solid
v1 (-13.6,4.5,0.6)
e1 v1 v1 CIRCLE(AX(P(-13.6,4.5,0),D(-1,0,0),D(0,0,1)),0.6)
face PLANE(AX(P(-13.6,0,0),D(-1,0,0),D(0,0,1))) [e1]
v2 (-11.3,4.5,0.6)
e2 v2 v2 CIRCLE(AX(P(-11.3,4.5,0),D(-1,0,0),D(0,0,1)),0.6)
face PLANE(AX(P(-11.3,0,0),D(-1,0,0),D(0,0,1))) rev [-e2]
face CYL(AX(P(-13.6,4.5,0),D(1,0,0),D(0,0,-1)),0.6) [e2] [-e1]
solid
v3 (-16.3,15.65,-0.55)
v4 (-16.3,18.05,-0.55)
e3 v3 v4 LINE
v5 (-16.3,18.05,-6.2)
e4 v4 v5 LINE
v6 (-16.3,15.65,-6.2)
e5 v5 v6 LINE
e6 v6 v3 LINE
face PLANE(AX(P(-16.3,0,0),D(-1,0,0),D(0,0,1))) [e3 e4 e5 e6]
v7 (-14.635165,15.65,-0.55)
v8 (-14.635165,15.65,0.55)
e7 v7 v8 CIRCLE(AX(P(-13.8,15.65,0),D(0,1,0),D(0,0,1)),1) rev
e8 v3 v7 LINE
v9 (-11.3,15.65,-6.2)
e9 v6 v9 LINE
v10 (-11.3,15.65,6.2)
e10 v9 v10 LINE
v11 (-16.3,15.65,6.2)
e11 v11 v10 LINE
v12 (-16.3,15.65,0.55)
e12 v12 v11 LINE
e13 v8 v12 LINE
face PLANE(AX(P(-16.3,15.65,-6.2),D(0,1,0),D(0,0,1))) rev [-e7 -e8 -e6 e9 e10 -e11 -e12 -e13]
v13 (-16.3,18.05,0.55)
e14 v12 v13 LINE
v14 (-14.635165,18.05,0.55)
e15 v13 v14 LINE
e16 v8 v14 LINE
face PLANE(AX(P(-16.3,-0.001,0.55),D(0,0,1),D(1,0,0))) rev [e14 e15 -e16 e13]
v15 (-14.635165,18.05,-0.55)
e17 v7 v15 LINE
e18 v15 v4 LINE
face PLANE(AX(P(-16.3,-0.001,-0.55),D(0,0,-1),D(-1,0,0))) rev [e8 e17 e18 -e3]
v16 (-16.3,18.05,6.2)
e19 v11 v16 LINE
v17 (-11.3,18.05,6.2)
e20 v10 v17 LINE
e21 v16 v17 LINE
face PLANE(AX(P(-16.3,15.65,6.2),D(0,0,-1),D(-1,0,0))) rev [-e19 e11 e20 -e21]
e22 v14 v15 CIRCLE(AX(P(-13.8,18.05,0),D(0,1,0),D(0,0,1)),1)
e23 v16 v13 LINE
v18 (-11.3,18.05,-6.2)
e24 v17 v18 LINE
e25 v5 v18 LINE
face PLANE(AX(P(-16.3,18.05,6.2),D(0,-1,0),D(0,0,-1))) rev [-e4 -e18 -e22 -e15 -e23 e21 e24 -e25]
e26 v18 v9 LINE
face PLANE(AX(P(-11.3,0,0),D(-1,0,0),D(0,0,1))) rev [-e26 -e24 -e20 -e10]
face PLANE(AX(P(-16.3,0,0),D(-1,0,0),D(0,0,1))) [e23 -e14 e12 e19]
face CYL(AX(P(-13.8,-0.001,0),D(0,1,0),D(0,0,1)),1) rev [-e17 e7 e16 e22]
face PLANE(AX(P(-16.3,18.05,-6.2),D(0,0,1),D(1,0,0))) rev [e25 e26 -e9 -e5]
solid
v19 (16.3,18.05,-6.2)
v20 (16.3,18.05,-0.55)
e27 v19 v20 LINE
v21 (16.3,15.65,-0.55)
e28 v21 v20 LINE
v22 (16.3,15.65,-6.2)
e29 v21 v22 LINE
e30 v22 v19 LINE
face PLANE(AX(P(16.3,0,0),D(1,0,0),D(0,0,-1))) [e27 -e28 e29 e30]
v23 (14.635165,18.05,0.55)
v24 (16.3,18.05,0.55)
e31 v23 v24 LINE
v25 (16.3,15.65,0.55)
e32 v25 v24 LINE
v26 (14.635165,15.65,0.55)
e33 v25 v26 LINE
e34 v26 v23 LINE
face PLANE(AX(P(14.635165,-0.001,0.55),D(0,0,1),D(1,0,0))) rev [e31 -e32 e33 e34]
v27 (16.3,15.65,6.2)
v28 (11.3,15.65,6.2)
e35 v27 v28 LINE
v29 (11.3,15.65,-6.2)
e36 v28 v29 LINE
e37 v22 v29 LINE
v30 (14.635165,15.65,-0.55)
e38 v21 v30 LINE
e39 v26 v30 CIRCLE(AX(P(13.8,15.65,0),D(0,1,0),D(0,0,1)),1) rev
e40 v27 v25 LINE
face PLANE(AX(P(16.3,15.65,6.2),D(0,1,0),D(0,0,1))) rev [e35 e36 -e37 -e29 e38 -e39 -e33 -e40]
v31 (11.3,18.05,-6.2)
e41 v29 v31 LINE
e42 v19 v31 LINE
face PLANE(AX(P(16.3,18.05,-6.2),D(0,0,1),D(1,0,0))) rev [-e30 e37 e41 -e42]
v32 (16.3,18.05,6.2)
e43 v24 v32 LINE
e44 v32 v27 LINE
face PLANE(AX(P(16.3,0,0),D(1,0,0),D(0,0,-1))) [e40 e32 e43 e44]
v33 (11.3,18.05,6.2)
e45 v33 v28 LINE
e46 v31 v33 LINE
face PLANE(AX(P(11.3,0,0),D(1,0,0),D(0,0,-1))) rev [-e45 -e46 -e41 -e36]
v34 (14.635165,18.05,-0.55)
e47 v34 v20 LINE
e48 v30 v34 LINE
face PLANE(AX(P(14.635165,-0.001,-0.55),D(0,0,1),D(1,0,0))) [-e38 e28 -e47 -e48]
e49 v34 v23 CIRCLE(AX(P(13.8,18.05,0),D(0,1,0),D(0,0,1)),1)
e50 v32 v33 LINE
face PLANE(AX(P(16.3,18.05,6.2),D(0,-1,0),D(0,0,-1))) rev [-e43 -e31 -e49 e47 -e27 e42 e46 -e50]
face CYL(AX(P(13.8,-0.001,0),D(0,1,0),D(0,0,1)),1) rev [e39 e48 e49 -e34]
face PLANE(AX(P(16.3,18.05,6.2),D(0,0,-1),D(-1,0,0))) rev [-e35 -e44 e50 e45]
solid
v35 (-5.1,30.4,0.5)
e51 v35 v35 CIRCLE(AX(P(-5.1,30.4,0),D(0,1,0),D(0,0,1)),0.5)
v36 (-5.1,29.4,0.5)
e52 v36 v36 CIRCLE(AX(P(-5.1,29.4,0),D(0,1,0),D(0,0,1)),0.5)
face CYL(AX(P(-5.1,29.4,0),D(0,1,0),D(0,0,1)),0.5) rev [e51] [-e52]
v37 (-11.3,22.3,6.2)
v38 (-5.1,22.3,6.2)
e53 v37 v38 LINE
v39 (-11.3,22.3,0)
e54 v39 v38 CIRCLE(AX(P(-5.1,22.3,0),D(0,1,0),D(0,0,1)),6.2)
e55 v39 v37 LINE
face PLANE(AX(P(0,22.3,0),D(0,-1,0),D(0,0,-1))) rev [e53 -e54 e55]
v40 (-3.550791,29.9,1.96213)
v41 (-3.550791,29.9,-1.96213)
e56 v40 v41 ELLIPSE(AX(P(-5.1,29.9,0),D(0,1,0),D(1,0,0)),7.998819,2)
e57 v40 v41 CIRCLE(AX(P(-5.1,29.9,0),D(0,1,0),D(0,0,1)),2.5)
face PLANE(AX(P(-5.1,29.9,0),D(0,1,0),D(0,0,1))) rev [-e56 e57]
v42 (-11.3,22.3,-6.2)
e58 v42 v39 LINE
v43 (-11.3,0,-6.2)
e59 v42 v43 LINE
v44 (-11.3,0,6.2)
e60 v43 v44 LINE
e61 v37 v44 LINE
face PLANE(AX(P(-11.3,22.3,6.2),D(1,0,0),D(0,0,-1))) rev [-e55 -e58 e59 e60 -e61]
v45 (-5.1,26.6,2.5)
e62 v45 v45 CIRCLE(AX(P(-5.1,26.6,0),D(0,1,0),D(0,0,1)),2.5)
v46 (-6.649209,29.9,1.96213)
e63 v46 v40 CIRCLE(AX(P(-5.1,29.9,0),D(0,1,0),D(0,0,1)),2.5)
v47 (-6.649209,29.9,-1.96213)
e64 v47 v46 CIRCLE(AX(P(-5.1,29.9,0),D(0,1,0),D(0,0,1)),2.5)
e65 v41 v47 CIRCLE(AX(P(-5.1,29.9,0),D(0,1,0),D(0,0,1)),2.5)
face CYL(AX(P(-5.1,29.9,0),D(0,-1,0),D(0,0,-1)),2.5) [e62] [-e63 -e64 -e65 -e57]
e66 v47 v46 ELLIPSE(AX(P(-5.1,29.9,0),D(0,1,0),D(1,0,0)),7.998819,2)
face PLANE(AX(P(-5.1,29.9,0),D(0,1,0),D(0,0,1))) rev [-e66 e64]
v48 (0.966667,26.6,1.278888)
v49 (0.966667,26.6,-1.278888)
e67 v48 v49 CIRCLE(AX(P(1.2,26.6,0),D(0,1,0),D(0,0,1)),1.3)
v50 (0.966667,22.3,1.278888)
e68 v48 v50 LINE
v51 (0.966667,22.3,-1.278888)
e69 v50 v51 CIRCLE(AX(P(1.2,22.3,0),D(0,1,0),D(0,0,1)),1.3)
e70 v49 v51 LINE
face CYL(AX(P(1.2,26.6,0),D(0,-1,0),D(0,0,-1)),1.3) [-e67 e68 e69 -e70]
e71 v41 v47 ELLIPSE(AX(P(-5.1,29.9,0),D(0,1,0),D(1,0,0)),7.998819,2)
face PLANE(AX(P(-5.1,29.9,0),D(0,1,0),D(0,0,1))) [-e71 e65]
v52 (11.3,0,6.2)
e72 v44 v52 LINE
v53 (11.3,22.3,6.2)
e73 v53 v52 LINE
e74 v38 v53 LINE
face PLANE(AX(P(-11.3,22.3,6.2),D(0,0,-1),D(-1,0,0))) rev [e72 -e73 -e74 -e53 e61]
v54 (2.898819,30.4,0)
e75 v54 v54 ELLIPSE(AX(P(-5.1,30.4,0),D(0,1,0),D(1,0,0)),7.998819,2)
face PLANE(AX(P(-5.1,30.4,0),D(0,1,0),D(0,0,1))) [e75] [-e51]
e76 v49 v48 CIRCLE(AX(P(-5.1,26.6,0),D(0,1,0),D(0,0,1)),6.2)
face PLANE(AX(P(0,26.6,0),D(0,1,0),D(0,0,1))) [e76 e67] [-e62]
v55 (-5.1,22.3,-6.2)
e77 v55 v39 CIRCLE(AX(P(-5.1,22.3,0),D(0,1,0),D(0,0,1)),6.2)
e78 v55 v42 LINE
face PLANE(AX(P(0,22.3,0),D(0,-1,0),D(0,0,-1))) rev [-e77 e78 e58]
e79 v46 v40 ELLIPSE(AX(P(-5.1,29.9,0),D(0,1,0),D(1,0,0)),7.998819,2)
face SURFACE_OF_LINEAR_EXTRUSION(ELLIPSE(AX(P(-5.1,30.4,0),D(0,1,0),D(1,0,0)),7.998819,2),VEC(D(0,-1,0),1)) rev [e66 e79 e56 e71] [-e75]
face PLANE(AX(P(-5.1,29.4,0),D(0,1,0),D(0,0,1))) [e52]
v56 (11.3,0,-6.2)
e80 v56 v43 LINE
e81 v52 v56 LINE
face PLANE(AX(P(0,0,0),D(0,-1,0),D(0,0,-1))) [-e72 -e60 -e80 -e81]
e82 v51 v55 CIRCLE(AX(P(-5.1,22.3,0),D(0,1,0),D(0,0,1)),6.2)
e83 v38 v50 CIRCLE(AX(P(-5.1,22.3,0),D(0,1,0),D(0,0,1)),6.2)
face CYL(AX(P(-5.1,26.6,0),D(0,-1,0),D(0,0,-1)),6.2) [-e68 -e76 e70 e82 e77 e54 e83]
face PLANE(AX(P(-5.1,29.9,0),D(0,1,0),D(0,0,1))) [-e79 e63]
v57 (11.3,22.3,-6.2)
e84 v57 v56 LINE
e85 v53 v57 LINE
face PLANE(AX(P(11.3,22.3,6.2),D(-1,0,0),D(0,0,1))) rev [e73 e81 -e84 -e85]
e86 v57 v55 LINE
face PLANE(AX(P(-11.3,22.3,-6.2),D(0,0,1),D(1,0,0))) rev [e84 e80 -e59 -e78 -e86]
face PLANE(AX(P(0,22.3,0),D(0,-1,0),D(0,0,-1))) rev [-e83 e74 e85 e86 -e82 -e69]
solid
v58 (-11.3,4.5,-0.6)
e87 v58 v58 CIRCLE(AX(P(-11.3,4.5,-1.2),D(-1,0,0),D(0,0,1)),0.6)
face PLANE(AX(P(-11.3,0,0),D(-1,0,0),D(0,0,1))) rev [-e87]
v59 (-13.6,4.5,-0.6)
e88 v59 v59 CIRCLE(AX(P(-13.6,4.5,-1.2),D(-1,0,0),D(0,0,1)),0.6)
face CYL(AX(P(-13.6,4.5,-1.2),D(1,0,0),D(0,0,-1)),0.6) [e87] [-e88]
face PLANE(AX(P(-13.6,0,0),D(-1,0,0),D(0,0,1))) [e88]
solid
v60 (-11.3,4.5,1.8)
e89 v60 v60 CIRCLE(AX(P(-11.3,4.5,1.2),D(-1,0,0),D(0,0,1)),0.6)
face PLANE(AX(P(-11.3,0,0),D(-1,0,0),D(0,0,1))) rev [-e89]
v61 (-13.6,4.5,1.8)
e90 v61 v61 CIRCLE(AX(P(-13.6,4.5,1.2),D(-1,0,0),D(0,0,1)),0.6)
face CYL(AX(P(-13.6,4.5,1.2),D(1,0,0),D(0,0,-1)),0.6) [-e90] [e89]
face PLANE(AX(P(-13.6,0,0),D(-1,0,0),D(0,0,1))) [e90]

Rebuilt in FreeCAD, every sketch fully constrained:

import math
import FreeCAD as App
import Part
import Sketcher

V = App.Vector

doc = App.newDocument("Part")
params = doc.addObject("Spreadsheet::Sheet", "Params")
for row, (alias, value) in enumerate([
    ("sketch1_width", "22.6 mm"),
    ("sketch1_height", "12.4 mm"),
    ("pad1_length", "22.3 mm"),
    ("sketch2_radius", "1.3 mm"),
    ("sketch2_radius2", "6.2 mm"),
    ("pad2_length", "4.3 mm"),
    ("sketch3_diameter", "5 mm"),
    ("pad3_length", "3.3 mm"),
    ("pad4_length", "0.5 mm"),
    ("sketch5_diameter", "1 mm"),
    ("pocket1_length", "1 mm"),
    ("sketch6_width", "2.4 mm"),
    ("sketch6_height", "12.4 mm"),
    ("pad5_length", "5 mm"),
    ("sketch7_radius", "1 mm"),
    ("sketch7_height", "1.1 mm"),
    ("pocket2_length", "2.4 mm"),
    ("sketch8_width", "2.4 mm"),
    ("sketch8_height", "12.4 mm"),
    ("pad6_length", "5 mm"),
    ("sketch9_radius", "1 mm"),
    ("sketch9_height", "1.1 mm"),
    ("pocket3_length", "2.4 mm"),
    ("sketch10_diameter", "1.2 mm"),
    ("pad7_length", "2.3 mm"),
    ("sketch11_diameter", "1.2 mm"),
    ("pad8_length", "2.3 mm"),
    ("sketch12_diameter", "1.2 mm"),
    ("pad9_length", "2.3 mm"),
], start=1):
    params.set(f"A{row}", alias)
    params.set(f"B{row}", "=" + value)
    params.setAlias(f"B{row}", alias)

body = doc.addObject("PartDesign::Body", "Body")

# Sketch on XZ plane
sketch1 = body.newObject("Sketcher::SketchObject", "Sketch")
sketch1.AttachmentSupport = (doc.getObject("XZ_Plane"), [""])
sketch1.MapMode = "FlatFace"
sketch1.addGeometry([
    Part.LineSegment(V(-11.3, -6.2, 0), V(-11.3, 6.2, 0)),
    Part.LineSegment(V(-11.3, 6.2, 0), V(11.3, 6.2, 0)),
    Part.LineSegment(V(11.3, 6.2, 0), V(11.3, -6.2, 0)),
    Part.LineSegment(V(11.3, -6.2, 0), V(-11.3, -6.2, 0)),
], False)
sketch1.addConstraint([
    Sketcher.Constraint("Coincident", 0, 2, 1, 1),
    Sketcher.Constraint("Coincident", 1, 2, 2, 1),
    Sketcher.Constraint("Coincident", 2, 2, 3, 1),
    Sketcher.Constraint("Coincident", 3, 2, 0, 1),
    Sketcher.Constraint("Vertical", 0),
    Sketcher.Constraint("Horizontal", 1),
    Sketcher.Constraint("Vertical", 2),
    Sketcher.Constraint("Horizontal", 3),
    Sketcher.Constraint("Symmetric", 0, 2, 2, 2, -1, 1),
    Sketcher.Constraint("DistanceX", 1, 1, 1, 2, 22.6),
    Sketcher.Constraint("DistanceY", 0, 1, 0, 2, 12.4),
])
sketch1.setExpression("Constraints[9]", "Params.sketch1_width")
sketch1.setExpression("Constraints[10]", "Params.sketch1_height")
pad1 = body.newObject("PartDesign::Pad", "Pad")
pad1.Profile = sketch1
pad1.setExpression("Length", "Params.pad1_length")
pad1.Reversed = True

# Sketch on XZ plane
sketch2 = body.newObject("Sketcher::SketchObject", "Sketch001")
sketch2.AttachmentSupport = (doc.getObject("XZ_Plane"), [""])
sketch2.MapMode = "FlatFace"
sketch2.AttachmentOffset = App.Placement(V(0, 0, -22.3), App.Rotation())
sketch2.addGeometry([
    Part.ArcOfCircle(Part.Circle(V(1.2, 0, 0), V(0, 0, 1), 1.3), math.radians(-100.339891), math.radians(100.339891)),
    Part.ArcOfCircle(Part.Circle(V(-5.1, 0, 0), V(0, 0, 1), 6.2), math.radians(11.90399), math.radians(348.09601)),
], False)
sketch2.addConstraint([
    Sketcher.Constraint("Coincident", 0, 1, 1, 2),
    Sketcher.Constraint("Coincident", 1, 1, 0, 2),
    Sketcher.Constraint("Symmetric", 0, 1, 1, 1, -1),
    Sketcher.Constraint("Radius", 0, 1.3),
    Sketcher.Constraint("Radius", 1, 6.2),
    Sketcher.Constraint("DistanceX", -1, 1, 0, 3, 1.2),
    Sketcher.Constraint("DistanceX", 1, 3, -1, 1, 5.1),
])
sketch2.setExpression("Constraints[3]", "Params.sketch2_radius")
sketch2.setExpression("Constraints[4]", "Params.sketch2_radius2")
pad2 = body.newObject("PartDesign::Pad", "Pad001")
pad2.Profile = sketch2
pad2.setExpression("Length", "Params.pad2_length")
pad2.Reversed = True

# Sketch on XZ plane
sketch3 = body.newObject("Sketcher::SketchObject", "Sketch002")
sketch3.AttachmentSupport = (doc.getObject("XZ_Plane"), [""])
sketch3.MapMode = "FlatFace"
sketch3.AttachmentOffset = App.Placement(V(0, 0, -26.6), App.Rotation())
sketch3.addGeometry(Part.Circle(V(-5.1, 0, 0), V(0, 0, 1), 2.5), False)
sketch3.addConstraint([
    Sketcher.Constraint("PointOnObject", 0, 3, -1),
    Sketcher.Constraint("Diameter", 0, 5.0),
    Sketcher.Constraint("DistanceX", 0, 3, -1, 1, 5.1),
])
sketch3.setExpression("Constraints[1]", "Params.sketch3_diameter")
pad3 = body.newObject("PartDesign::Pad", "Pad002")
pad3.Profile = sketch3
pad3.setExpression("Length", "Params.pad3_length")
pad3.Reversed = True

# Sketch on XZ plane
sketch4 = body.newObject("Sketcher::SketchObject", "Sketch003")
sketch4.AttachmentSupport = (doc.getObject("XZ_Plane"), [""])
sketch4.MapMode = "FlatFace"
sketch4.AttachmentOffset = App.Placement(V(0, 0, -29.9), App.Rotation())
sketch4.addGeometry(Part.Ellipse(V(2.898819, 0, 0), V(-5.1, 2, 0), V(-5.1, 0, 0)), False)
sketch4.addConstraint(Sketcher.Constraint("Block", 0))
pad4 = body.newObject("PartDesign::Pad", "Pad003")
pad4.Profile = sketch4
pad4.setExpression("Length", "Params.pad4_length")
pad4.Reversed = True

# Sketch on XZ plane
sketch5 = body.newObject("Sketcher::SketchObject", "Sketch004")
sketch5.AttachmentSupport = (doc.getObject("XZ_Plane"), [""])
sketch5.MapMode = "FlatFace"
sketch5.AttachmentOffset = App.Placement(V(0, 0, -30.4), App.Rotation())
sketch5.addGeometry(Part.Circle(V(-5.1, 0, 0), V(0, 0, 1), 0.5), False)
sketch5.addConstraint([
    Sketcher.Constraint("PointOnObject", 0, 3, -1),
    Sketcher.Constraint("Diameter", 0, 1.0),
    Sketcher.Constraint("DistanceX", 0, 3, -1, 1, 5.1),
])
sketch5.setExpression("Constraints[1]", "Params.sketch5_diameter")
pocket1 = body.newObject("PartDesign::Pocket", "Pocket")
pocket1.Profile = sketch5
pocket1.setExpression("Length", "Params.pocket1_length")
pocket1.Reversed = True
body2 = doc.addObject("PartDesign::Body", "Body001")

# Sketch on YZ plane
sketch6 = body2.newObject("Sketcher::SketchObject", "Sketch005")
sketch6.AttachmentSupport = (doc.getObject("YZ_Plane001"), [""])
sketch6.MapMode = "FlatFace"
sketch6.AttachmentOffset = App.Placement(V(0, 0, 11.3), App.Rotation())
sketch6.addGeometry([
    Part.LineSegment(V(18.05, 6.2, 0), V(15.65, 6.2, 0)),
    Part.LineSegment(V(15.65, 6.2, 0), V(15.65, -6.2, 0)),
    Part.LineSegment(V(15.65, -6.2, 0), V(18.05, -6.2, 0)),
    Part.LineSegment(V(18.05, -6.2, 0), V(18.05, 6.2, 0)),
], False)
sketch6.addConstraint([
    Sketcher.Constraint("Coincident", 0, 2, 1, 1),
    Sketcher.Constraint("Coincident", 1, 2, 2, 1),
    Sketcher.Constraint("Coincident", 2, 2, 3, 1),
    Sketcher.Constraint("Coincident", 3, 2, 0, 1),
    Sketcher.Constraint("Horizontal", 0),
    Sketcher.Constraint("Vertical", 1),
    Sketcher.Constraint("Horizontal", 2),
    Sketcher.Constraint("Vertical", 3),
    Sketcher.Constraint("DistanceX", 0, 2, 0, 1, 2.4),
    Sketcher.Constraint("DistanceY", 1, 2, 1, 1, 12.4),
    Sketcher.Constraint("DistanceY", -1, 1, 0, 2, 6.2),
    Sketcher.Constraint("DistanceX", -1, 1, 0, 2, 15.65),
])
sketch6.setExpression("Constraints[8]", "Params.sketch6_width")
sketch6.setExpression("Constraints[9]", "Params.sketch6_height")
pad5 = body2.newObject("PartDesign::Pad", "Pad004")
pad5.Profile = sketch6
pad5.setExpression("Length", "Params.pad5_length")

# Sketch on XZ plane
sketch7 = body2.newObject("Sketcher::SketchObject", "Sketch006")
sketch7.AttachmentSupport = (doc.getObject("XZ_Plane001"), [""])
sketch7.MapMode = "FlatFace"
sketch7.AttachmentOffset = App.Placement(V(0, 0, -18.05), App.Rotation())
sketch7.addGeometry([
    Part.LineSegment(V(16.3, -0.55, 0), V(14.635165, -0.55, 0)),
    Part.ArcOfCircle(Part.Circle(V(13.8, 0, 0), V(0, 0, 1), 1), math.radians(33.367013), math.radians(326.632987)),
    Part.LineSegment(V(14.635165, 0.55, 0), V(16.3, 0.55, 0)),
    Part.LineSegment(V(16.3, 0.55, 0), V(16.3, -0.55, 0)),
], False)
sketch7.addConstraint([
    Sketcher.Constraint("Coincident", 0, 2, 1, 2),
    Sketcher.Constraint("Coincident", 1, 1, 2, 1),
    Sketcher.Constraint("Coincident", 2, 2, 3, 1),
    Sketcher.Constraint("Coincident", 3, 2, 0, 1),
    Sketcher.Constraint("Horizontal", 0),
    Sketcher.Constraint("Horizontal", 2),
    Sketcher.Constraint("Vertical", 3),
    Sketcher.Constraint("Symmetric", 0, 2, 1, 1, -1),
    Sketcher.Constraint("Radius", 1, 1.0),
    Sketcher.Constraint("DistanceY", 3, 2, 3, 1, 1.1),
    Sketcher.Constraint("DistanceX", -1, 1, 1, 3, 13.8),
    Sketcher.Constraint("DistanceX", -1, 1, 2, 2, 16.3),
])
sketch7.setExpression("Constraints[8]", "Params.sketch7_radius")
sketch7.setExpression("Constraints[9]", "Params.sketch7_height")
pocket2 = body2.newObject("PartDesign::Pocket", "Pocket001")
pocket2.Profile = sketch7
pocket2.setExpression("Length", "Params.pocket2_length")
pocket2.Reversed = True
body3 = doc.addObject("PartDesign::Body", "Body002")

# Sketch on YZ plane
sketch8 = body3.newObject("Sketcher::SketchObject", "Sketch007")
sketch8.AttachmentSupport = (doc.getObject("YZ_Plane002"), [""])
sketch8.MapMode = "FlatFace"
sketch8.AttachmentOffset = App.Placement(V(0, 0, -11.3), App.Rotation())
sketch8.addGeometry([
    Part.LineSegment(V(18.05, -6.2, 0), V(15.65, -6.2, 0)),
    Part.LineSegment(V(15.65, -6.2, 0), V(15.65, 6.2, 0)),
    Part.LineSegment(V(15.65, 6.2, 0), V(18.05, 6.2, 0)),
    Part.LineSegment(V(18.05, 6.2, 0), V(18.05, -6.2, 0)),
], False)
sketch8.addConstraint([
    Sketcher.Constraint("Coincident", 0, 2, 1, 1),
    Sketcher.Constraint("Coincident", 1, 2, 2, 1),
    Sketcher.Constraint("Coincident", 2, 2, 3, 1),
    Sketcher.Constraint("Coincident", 3, 2, 0, 1),
    Sketcher.Constraint("Horizontal", 0),
    Sketcher.Constraint("Vertical", 1),
    Sketcher.Constraint("Horizontal", 2),
    Sketcher.Constraint("Vertical", 3),
    Sketcher.Constraint("DistanceX", 0, 2, 0, 1, 2.4),
    Sketcher.Constraint("DistanceY", 1, 1, 1, 2, 12.4),
    Sketcher.Constraint("DistanceY", 0, 2, -1, 1, 6.2),
    Sketcher.Constraint("DistanceX", -1, 1, 0, 2, 15.65),
])
sketch8.setExpression("Constraints[8]", "Params.sketch8_width")
sketch8.setExpression("Constraints[9]", "Params.sketch8_height")
pad6 = body3.newObject("PartDesign::Pad", "Pad005")
pad6.Profile = sketch8
pad6.setExpression("Length", "Params.pad6_length")
pad6.Reversed = True

# Sketch on XZ plane
sketch9 = body3.newObject("Sketcher::SketchObject", "Sketch008")
sketch9.AttachmentSupport = (doc.getObject("XZ_Plane002"), [""])
sketch9.MapMode = "FlatFace"
sketch9.AttachmentOffset = App.Placement(V(0, 0, -18.05), App.Rotation())
sketch9.addGeometry([
    Part.LineSegment(V(-14.635165, -0.55, 0), V(-16.3, -0.55, 0)),  # 0
    Part.LineSegment(V(-16.3, -0.55, 0), V(-16.3, 0.55, 0)),  # 1
    Part.LineSegment(V(-16.3, 0.55, 0), V(-14.635165, 0.55, 0)),  # 2
    Part.ArcOfCircle(Part.Circle(V(-13.8, 0, 0), V(0, 0, 1), 1), math.radians(-146.632987), math.radians(146.632987)),  # 3
    Part.LineSegment(V(14.635165, 0.55, 0), V(16.3, 0.55, 0)),  # 4
    Part.LineSegment(V(16.3, 0.55, 0), V(16.3, -0.55, 0)),  # 5
    Part.LineSegment(V(16.3, -0.55, 0), V(14.635165, -0.55, 0)),  # 6
    Part.ArcOfCircle(Part.Circle(V(13.8, 0, 0), V(0, 0, 1), 1), math.radians(33.367013), math.radians(326.632987)),  # 7
], False)
sketch9.addConstraint([
    Sketcher.Constraint("Coincident", 0, 2, 1, 1),
    Sketcher.Constraint("Coincident", 1, 2, 2, 1),
    Sketcher.Constraint("Coincident", 2, 2, 3, 2),
    Sketcher.Constraint("Coincident", 3, 1, 0, 1),
    Sketcher.Constraint("Coincident", 4, 2, 5, 1),
    Sketcher.Constraint("Coincident", 5, 2, 6, 1),
    Sketcher.Constraint("Coincident", 6, 2, 7, 2),
    Sketcher.Constraint("Coincident", 7, 1, 4, 1),
    Sketcher.Constraint("Horizontal", 0),
    Sketcher.Constraint("Vertical", 1),
    Sketcher.Constraint("Horizontal", 2),
    Sketcher.Constraint("Horizontal", 4),
    Sketcher.Constraint("Vertical", 5),
    Sketcher.Constraint("Horizontal", 6),
    Sketcher.Constraint("Equal", 3, 7),
    Sketcher.Constraint("Symmetric", 3, 3, 7, 3, -1, 1),
    Sketcher.Constraint("Symmetric", 0, 2, 4, 2, -1, 1),
    Sketcher.Constraint("Symmetric", 3, 1, 6, 2, -2),
    Sketcher.Constraint("Horizontal", 2, 2, 4, 2),
    Sketcher.Constraint("Radius", 3, 1.0),
    Sketcher.Constraint("DistanceY", 1, 1, 1, 2, 1.1),
    Sketcher.Constraint("DistanceX", 3, 3, -1, 1, 13.8),
    Sketcher.Constraint("DistanceX", 0, 2, -1, 1, 16.3),
])
sketch9.setExpression("Constraints[19]", "Params.sketch9_radius")
sketch9.setExpression("Constraints[20]", "Params.sketch9_height")
pocket3 = body3.newObject("PartDesign::Pocket", "Pocket002")
pocket3.Profile = sketch9
pocket3.setExpression("Length", "Params.pocket3_length")
pocket3.Reversed = True
body4 = doc.addObject("PartDesign::Body", "Body003")

# Sketch on YZ plane
sketch10 = body4.newObject("Sketcher::SketchObject", "Sketch009")
sketch10.AttachmentSupport = (doc.getObject("YZ_Plane003"), [""])
sketch10.MapMode = "FlatFace"
sketch10.AttachmentOffset = App.Placement(V(0, 0, -11.3), App.Rotation())
sketch10.addGeometry(Part.Circle(V(4.5, 0, 0), V(0, 0, 1), 0.6), False)
sketch10.addConstraint([
    Sketcher.Constraint("PointOnObject", 0, 3, -1),
    Sketcher.Constraint("Diameter", 0, 1.2),
    Sketcher.Constraint("DistanceX", -1, 1, 0, 3, 4.5),
])
sketch10.setExpression("Constraints[1]", "Params.sketch10_diameter")
pad7 = body4.newObject("PartDesign::Pad", "Pad006")
pad7.Profile = sketch10
pad7.setExpression("Length", "Params.pad7_length")
pad7.Reversed = True
body5 = doc.addObject("PartDesign::Body", "Body004")

# Sketch on YZ plane
sketch11 = body5.newObject("Sketcher::SketchObject", "Sketch010")
sketch11.AttachmentSupport = (doc.getObject("YZ_Plane004"), [""])
sketch11.MapMode = "FlatFace"
sketch11.AttachmentOffset = App.Placement(V(0, 0, -11.3), App.Rotation())
sketch11.addGeometry(Part.Circle(V(4.5, -1.2, 0), V(0, 0, 1), 0.6), False)
sketch11.addConstraint([
    Sketcher.Constraint("Diameter", 0, 1.2),
    Sketcher.Constraint("DistanceX", -1, 1, 0, 3, 4.5),
    Sketcher.Constraint("DistanceY", 0, 3, -1, 1, 1.2),
])
sketch11.setExpression("Constraints[0]", "Params.sketch11_diameter")
pad8 = body5.newObject("PartDesign::Pad", "Pad007")
pad8.Profile = sketch11
pad8.setExpression("Length", "Params.pad8_length")
pad8.Reversed = True
body6 = doc.addObject("PartDesign::Body", "Body005")

# Sketch on YZ plane
sketch12 = body6.newObject("Sketcher::SketchObject", "Sketch011")
sketch12.AttachmentSupport = (doc.getObject("YZ_Plane005"), [""])
sketch12.MapMode = "FlatFace"
sketch12.AttachmentOffset = App.Placement(V(0, 0, -11.3), App.Rotation())
sketch12.addGeometry(Part.Circle(V(4.5, 1.2, 0), V(0, 0, 1), 0.6), False)
sketch12.addConstraint([
    Sketcher.Constraint("Diameter", 0, 1.2),
    Sketcher.Constraint("DistanceX", -1, 1, 0, 3, 4.5),
    Sketcher.Constraint("DistanceY", -1, 1, 0, 3, 1.2),
])
sketch12.setExpression("Constraints[0]", "Params.sketch12_diameter")
pad9 = body6.newObject("PartDesign::Pad", "Pad008")
pad9.Profile = sketch12
pad9.setExpression("Length", "Params.pad9_length")
pad9.Reversed = True

doc.recompute()
